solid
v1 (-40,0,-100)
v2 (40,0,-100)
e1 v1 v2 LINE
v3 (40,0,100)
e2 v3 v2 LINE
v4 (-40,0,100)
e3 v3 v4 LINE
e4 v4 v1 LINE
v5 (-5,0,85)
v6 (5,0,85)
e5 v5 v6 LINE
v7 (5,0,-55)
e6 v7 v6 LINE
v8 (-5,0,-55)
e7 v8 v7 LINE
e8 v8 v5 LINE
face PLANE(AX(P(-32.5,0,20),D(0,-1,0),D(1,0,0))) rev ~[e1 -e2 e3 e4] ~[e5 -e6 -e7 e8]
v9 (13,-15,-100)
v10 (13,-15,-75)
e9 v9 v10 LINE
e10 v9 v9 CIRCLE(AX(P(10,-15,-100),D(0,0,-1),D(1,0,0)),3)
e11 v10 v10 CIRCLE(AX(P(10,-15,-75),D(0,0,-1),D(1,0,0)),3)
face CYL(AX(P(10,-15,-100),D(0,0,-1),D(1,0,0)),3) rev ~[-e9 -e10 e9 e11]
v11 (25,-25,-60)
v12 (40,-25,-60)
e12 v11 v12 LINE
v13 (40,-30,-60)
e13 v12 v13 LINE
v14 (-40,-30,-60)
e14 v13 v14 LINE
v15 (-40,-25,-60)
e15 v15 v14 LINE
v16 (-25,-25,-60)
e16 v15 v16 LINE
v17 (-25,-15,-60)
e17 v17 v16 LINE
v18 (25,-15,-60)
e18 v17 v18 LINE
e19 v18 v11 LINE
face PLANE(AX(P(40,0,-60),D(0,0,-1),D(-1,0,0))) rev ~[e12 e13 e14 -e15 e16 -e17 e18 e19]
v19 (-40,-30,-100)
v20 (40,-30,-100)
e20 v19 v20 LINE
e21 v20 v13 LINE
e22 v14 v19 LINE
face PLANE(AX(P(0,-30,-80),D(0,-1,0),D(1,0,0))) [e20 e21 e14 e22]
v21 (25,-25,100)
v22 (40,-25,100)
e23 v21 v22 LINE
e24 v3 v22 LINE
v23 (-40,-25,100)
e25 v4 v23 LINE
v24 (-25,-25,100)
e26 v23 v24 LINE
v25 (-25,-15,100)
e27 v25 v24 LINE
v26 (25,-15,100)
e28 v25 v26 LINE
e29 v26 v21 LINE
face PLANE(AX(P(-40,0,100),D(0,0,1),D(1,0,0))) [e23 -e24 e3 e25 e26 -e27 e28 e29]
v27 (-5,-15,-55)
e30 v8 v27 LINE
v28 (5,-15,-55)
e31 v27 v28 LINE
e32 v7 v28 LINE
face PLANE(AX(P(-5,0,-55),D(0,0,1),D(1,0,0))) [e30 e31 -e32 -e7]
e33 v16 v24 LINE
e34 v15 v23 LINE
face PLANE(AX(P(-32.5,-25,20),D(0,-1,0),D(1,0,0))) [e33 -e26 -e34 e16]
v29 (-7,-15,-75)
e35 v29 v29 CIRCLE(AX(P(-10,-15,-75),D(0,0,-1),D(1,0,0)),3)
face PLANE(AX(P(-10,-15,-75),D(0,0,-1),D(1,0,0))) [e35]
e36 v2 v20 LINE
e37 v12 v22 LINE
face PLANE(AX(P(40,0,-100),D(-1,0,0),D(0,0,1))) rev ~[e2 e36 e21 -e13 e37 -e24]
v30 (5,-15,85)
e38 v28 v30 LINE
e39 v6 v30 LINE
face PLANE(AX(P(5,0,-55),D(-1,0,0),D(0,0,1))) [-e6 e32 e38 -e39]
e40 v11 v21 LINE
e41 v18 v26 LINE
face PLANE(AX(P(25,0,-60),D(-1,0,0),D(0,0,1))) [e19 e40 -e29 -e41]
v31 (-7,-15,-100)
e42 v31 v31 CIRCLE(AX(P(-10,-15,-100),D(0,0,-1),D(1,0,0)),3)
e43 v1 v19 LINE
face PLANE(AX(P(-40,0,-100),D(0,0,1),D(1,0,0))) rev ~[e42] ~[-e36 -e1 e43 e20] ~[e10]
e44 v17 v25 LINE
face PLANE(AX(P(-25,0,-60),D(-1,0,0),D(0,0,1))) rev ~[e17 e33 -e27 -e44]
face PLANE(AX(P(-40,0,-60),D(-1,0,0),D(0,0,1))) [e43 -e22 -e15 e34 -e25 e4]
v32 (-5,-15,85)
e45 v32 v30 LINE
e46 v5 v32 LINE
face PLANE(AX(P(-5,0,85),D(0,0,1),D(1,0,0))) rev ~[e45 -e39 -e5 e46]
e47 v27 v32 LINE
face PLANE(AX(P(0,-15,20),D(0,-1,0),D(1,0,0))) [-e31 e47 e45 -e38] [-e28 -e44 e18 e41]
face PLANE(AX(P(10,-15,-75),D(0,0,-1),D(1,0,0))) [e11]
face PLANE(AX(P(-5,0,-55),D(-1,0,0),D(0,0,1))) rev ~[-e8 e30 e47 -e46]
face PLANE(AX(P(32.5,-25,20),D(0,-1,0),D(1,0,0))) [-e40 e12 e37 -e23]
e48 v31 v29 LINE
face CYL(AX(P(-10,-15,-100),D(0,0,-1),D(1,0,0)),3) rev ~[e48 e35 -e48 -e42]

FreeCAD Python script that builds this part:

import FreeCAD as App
import Part
import Sketcher
Q = App.Units.Quantity

doc = App.newDocument("Part")
body = doc.addObject("PartDesign::Body", "Body")

# Sketch on XZ plane
sketch1 = body.newObject("Sketcher::SketchObject", "Sketch")
sketch1.AttachmentSupport = (doc.getObject("XZ_Plane"), [""])
sketch1.MapMode = "FlatFace"
sketch1.addGeometry(Part.LineSegment(App.Vector(-25, 100, 0), App.Vector(-25, -60, 0)), False)
sketch1.addGeometry(Part.LineSegment(App.Vector(-25, -60, 0), App.Vector(25, -60, 0)), False)
sketch1.addGeometry(Part.LineSegment(App.Vector(25, -60, 0), App.Vector(25, 100, 0)), False)
sketch1.addGeometry(Part.LineSegment(App.Vector(25, 100, 0), App.Vector(-25, 100, 0)), False)
sketch1.addGeometry(Part.LineSegment(App.Vector(5, -55, 0), App.Vector(-5, -55, 0)), False)
sketch1.addGeometry(Part.LineSegment(App.Vector(-5, -55, 0), App.Vector(-5, 85, 0)), False)
sketch1.addGeometry(Part.LineSegment(App.Vector(-5, 85, 0), App.Vector(5, 85, 0)), False)
sketch1.addGeometry(Part.LineSegment(App.Vector(5, 85, 0), App.Vector(5, -55, 0)), False)
sketch1.addConstraint(Sketcher.Constraint("Coincident", 0, 2, 1, 1))
sketch1.addConstraint(Sketcher.Constraint("Coincident", 1, 2, 2, 1))
sketch1.addConstraint(Sketcher.Constraint("Coincident", 2, 2, 3, 1))
sketch1.addConstraint(Sketcher.Constraint("Coincident", 3, 2, 0, 1))
sketch1.addConstraint(Sketcher.Constraint("Coincident", 4, 2, 5, 1))
sketch1.addConstraint(Sketcher.Constraint("Coincident", 5, 2, 6, 1))
sketch1.addConstraint(Sketcher.Constraint("Coincident", 6, 2, 7, 1))
sketch1.addConstraint(Sketcher.Constraint("Coincident", 7, 2, 4, 1))
sketch1.addConstraint(Sketcher.Constraint("Vertical", 0))
sketch1.addConstraint(Sketcher.Constraint("Horizontal", 1))
sketch1.addConstraint(Sketcher.Constraint("Vertical", 2))
sketch1.addConstraint(Sketcher.Constraint("Horizontal", 3))
sketch1.addConstraint(Sketcher.Constraint("Horizontal", 4))
sketch1.addConstraint(Sketcher.Constraint("Vertical", 5))
sketch1.addConstraint(Sketcher.Constraint("Horizontal", 6))
sketch1.addConstraint(Sketcher.Constraint("Vertical", 7))
sketch1.addConstraint(Sketcher.Constraint("DistanceX", 1, 1, 1, 2, Q("50 mm")))
sketch1.addConstraint(Sketcher.Constraint("DistanceX", 4, 2, 4, 1, Q("10 mm")))
sketch1.addConstraint(Sketcher.Constraint("DistanceY", 0, 2, 0, 1, Q("160 mm")))
sketch1.addConstraint(Sketcher.Constraint("DistanceY", 5, 1, 5, 2, Q("140 mm")))
sketch1.addConstraint(Sketcher.Constraint("DistanceX", 0, 2, -1, 1, Q("25 mm")))
sketch1.addConstraint(Sketcher.Constraint("DistanceY", 0, 2, -1, 1, Q("60 mm")))
sketch1.addConstraint(Sketcher.Constraint("DistanceX", 4, 2, -1, 1, Q("5 mm")))
sketch1.addConstraint(Sketcher.Constraint("DistanceY", 4, 2, -1, 1, Q("55 mm")))
pad1 = body.newObject("PartDesign::Pad", "Pad")
pad1.Profile = sketch1
pad1.Length = 15

# Sketch on XZ plane
sketch2 = body.newObject("Sketcher::SketchObject", "Sketch001")
sketch2.AttachmentSupport = (doc.getObject("XZ_Plane"), [""])
sketch2.MapMode = "FlatFace"
sketch2.addGeometry(Part.LineSegment(App.Vector(-40, -100, 0), App.Vector(40, -100, 0)), False)
sketch2.addGeometry(Part.LineSegment(App.Vector(40, -100, 0), App.Vector(40, -60, 0)), False)
sketch2.addGeometry(Part.LineSegment(App.Vector(40, -60, 0), App.Vector(-40, -60, 0)), False)
sketch2.addGeometry(Part.LineSegment(App.Vector(-40, -60, 0), App.Vector(-40, -100, 0)), False)
sketch2.addConstraint(Sketcher.Constraint("Coincident", 0, 2, 1, 1))
sketch2.addConstraint(Sketcher.Constraint("Coincident", 1, 2, 2, 1))
sketch2.addConstraint(Sketcher.Constraint("Coincident", 2, 2, 3, 1))
sketch2.addConstraint(Sketcher.Constraint("Coincident", 3, 2, 0, 1))
sketch2.addConstraint(Sketcher.Constraint("Horizontal", 0))
sketch2.addConstraint(Sketcher.Constraint("Vertical", 1))
sketch2.addConstraint(Sketcher.Constraint("Horizontal", 2))
sketch2.addConstraint(Sketcher.Constraint("Vertical", 3))
sketch2.addConstraint(Sketcher.Constraint("DistanceX", 0, 1, 0, 2, Q("80 mm")))
sketch2.addConstraint(Sketcher.Constraint("DistanceY", 1, 1, 1, 2, Q("40 mm")))
sketch2.addConstraint(Sketcher.Constraint("DistanceX", -1, 1, 0, 2, Q("40 mm")))
sketch2.addConstraint(Sketcher.Constraint("DistanceY", 0, 2, -1, 1, Q("100 mm")))
pad2 = body.newObject("PartDesign::Pad", "Pad001")
pad2.Profile = sketch2
pad2.Length = 30

# Sketch on XY plane
sketch3 = body.newObject("Sketcher::SketchObject", "Sketch002")
sketch3.AttachmentSupport = (doc.getObject("XY_Plane"), [""])
sketch3.MapMode = "FlatFace"
sketch3.AttachmentOffset = App.Placement(App.Vector(0, 0, -100), App.Rotation())
sketch3.addGeometry(Part.Circle(App.Vector(-10, -15, 0), App.Vector(0, 0, 1), 3), False)
sketch3.addGeometry(Part.Circle(App.Vector(10, -15, 0), App.Vector(0, 0, 1), 3), False)
sketch3.addConstraint(Sketcher.Constraint("Equal", 0, 1))
sketch3.addConstraint(Sketcher.Constraint("Symmetric", 0, 3, 1, 3, -2))
sketch3.addConstraint(Sketcher.Constraint("Diameter", 0, Q("6 mm")))
sketch3.addConstraint(Sketcher.Constraint("DistanceX", 0, 3, -1, 1, Q("10 mm")))
sketch3.addConstraint(Sketcher.Constraint("DistanceY", 0, 3, -1, 1, Q("15 mm")))
pocket1 = body.newObject("PartDesign::Pocket", "Pocket")
pocket1.Profile = sketch3
pocket1.Length = 25
pocket1.Reversed = True

# Sketch on XZ plane
sketch4 = body.newObject("Sketcher::SketchObject", "Sketch003")
sketch4.AttachmentSupport = (doc.getObject("XZ_Plane"), [""])
sketch4.MapMode = "FlatFace"
sketch4.addGeometry(Part.LineSegment(App.Vector(-40, 100, 0), App.Vector(-40, -60, 0)), False)
sketch4.addGeometry(Part.LineSegment(App.Vector(-40, -60, 0), App.Vector(-25, -60, 0)), False)
sketch4.addGeometry(Part.LineSegment(App.Vector(-25, -60, 0), App.Vector(-25, 100, 0)), False)
sketch4.addGeometry(Part.LineSegment(App.Vector(-25, 100, 0), App.Vector(-40, 100, 0)), False)
sketch4.addGeometry(Part.LineSegment(App.Vector(25, 100, 0), App.Vector(25, -60, 0)), False)
sketch4.addGeometry(Part.LineSegment(App.Vector(25, -60, 0), App.Vector(40, -60, 0)), False)
sketch4.addGeometry(Part.LineSegment(App.Vector(40, -60, 0), App.Vector(40, 100, 0)), False)
sketch4.addGeometry(Part.LineSegment(App.Vector(40, 100, 0), App.Vector(25, 100, 0)), False)
sketch4.addConstraint(Sketcher.Constraint("Coincident", 0, 2, 1, 1))
sketch4.addConstraint(Sketcher.Constraint("Coincident", 1, 2, 2, 1))
sketch4.addConstraint(Sketcher.Constraint("Coincident", 2, 2, 3, 1))
sketch4.addConstraint(Sketcher.Constraint("Coincident", 3, 2, 0, 1))
sketch4.addConstraint(Sketcher.Constraint("Coincident", 4, 2, 5, 1))
sketch4.addConstraint(Sketcher.Constraint("Coincident", 5, 2, 6, 1))
sketch4.addConstraint(Sketcher.Constraint("Coincident", 6, 2, 7, 1))
sketch4.addConstraint(Sketcher.Constraint("Coincident", 7, 2, 4, 1))
sketch4.addConstraint(Sketcher.Constraint("Vertical", 0))
sketch4.addConstraint(Sketcher.Constraint("Horizontal", 1))
sketch4.addConstraint(Sketcher.Constraint("Vertical", 2))
sketch4.addConstraint(Sketcher.Constraint("Horizontal", 3))
sketch4.addConstraint(Sketcher.Constraint("Vertical", 4))
sketch4.addConstraint(Sketcher.Constraint("Horizontal", 5))
sketch4.addConstraint(Sketcher.Constraint("Vertical", 6))
sketch4.addConstraint(Sketcher.Constraint("Horizontal", 7))
sketch4.addConstraint(Sketcher.Constraint("Symmetric", 1, 2, 4, 2, -2))
sketch4.addConstraint(Sketcher.Constraint("Symmetric", 3, 2, 6, 2, -2))
sketch4.addConstraint(Sketcher.Constraint("DistanceX", 1, 1, 1, 2, Q("15 mm")))
sketch4.addConstraint(Sketcher.Constraint("DistanceY", 0, 2, 0, 1, Q("160 mm")))
sketch4.addConstraint(Sketcher.Constraint("DistanceX", 0, 2, -1, 1, Q("40 mm")))
sketch4.addConstraint(Sketcher.Constraint("DistanceY", 0, 2, -1, 1, Q("60 mm")))
pad3 = body.newObject("PartDesign::Pad", "Pad002")
pad3.Profile = sketch4
pad3.Length = 25

doc.recompute()
